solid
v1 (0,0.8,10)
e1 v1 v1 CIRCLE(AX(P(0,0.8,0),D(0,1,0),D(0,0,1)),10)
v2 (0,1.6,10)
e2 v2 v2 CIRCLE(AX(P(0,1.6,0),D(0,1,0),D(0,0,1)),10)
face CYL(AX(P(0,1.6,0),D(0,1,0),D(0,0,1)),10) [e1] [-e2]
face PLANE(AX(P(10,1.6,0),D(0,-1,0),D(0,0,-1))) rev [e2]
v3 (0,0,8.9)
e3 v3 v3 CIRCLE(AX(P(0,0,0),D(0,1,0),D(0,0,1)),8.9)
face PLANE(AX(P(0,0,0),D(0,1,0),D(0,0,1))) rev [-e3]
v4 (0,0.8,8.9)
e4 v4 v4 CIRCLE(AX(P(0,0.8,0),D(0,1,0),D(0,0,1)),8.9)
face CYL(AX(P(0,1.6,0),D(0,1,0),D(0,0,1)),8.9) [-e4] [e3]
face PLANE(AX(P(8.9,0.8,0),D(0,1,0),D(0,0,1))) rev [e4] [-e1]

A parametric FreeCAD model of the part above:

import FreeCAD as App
import Part
import Sketcher

V = App.Vector
Q = App.Units.Quantity

doc = App.newDocument("Part")
body = doc.addObject("PartDesign::Body", "Body")

# Sketch on XY plane
sketch1 = body.newObject("Sketcher::SketchObject", "Sketch")
sketch1.AttachmentSupport = (doc.getObject("XY_Plane"), [""])
sketch1.MapMode = "FlatFace"
sketch1.addGeometry(Part.LineSegment(V(0, 0, 0), V(8.9, 0, 0)), False)
sketch1.addGeometry(Part.LineSegment(V(8.9, 0, 0), V(8.9, 0.8, 0)), False)
sketch1.addGeometry(Part.LineSegment(V(8.9, 0.8, 0), V(10, 0.8, 0)), False)
sketch1.addGeometry(Part.LineSegment(V(10, 0.8, 0), V(10, 1.6, 0)), False)
sketch1.addGeometry(Part.LineSegment(V(10, 1.6, 0), V(0, 1.6, 0)), False)
sketch1.addGeometry(Part.LineSegment(V(0, 1.6, 0), V(0, 0, 0)), False)
sketch1.addConstraint(Sketcher.Constraint("Coincident", 0, 2, 1, 1))
sketch1.addConstraint(Sketcher.Constraint("Coincident", 1, 2, 2, 1))
sketch1.addConstraint(Sketcher.Constraint("Coincident", 2, 2, 3, 1))
sketch1.addConstraint(Sketcher.Constraint("Coincident", 3, 2, 4, 1))
sketch1.addConstraint(Sketcher.Constraint("Coincident", 4, 2, 5, 1))
sketch1.addConstraint(Sketcher.Constraint("Coincident", 5, 2, 0, 1))
sketch1.addConstraint(Sketcher.Constraint("Horizontal", 0))
sketch1.addConstraint(Sketcher.Constraint("Vertical", 1))
sketch1.addConstraint(Sketcher.Constraint("Horizontal", 2))
sketch1.addConstraint(Sketcher.Constraint("Vertical", 3))
sketch1.addConstraint(Sketcher.Constraint("Horizontal", 4))
sketch1.addConstraint(Sketcher.Constraint("Vertical", 5))
sketch1.addConstraint(Sketcher.Constraint("Coincident", 5, 2, -1, 1))
sketch1.addConstraint(Sketcher.Constraint("Equal", 1, 3))
sketch1.addConstraint(Sketcher.Constraint("DistanceX", 4, 2, 4, 1, Q("10 mm")))
sketch1.addConstraint(Sketcher.Constraint("DistanceX", 0, 1, 0, 2, Q("8.9 mm")))
sketch1.addConstraint(Sketcher.Constraint("DistanceY", 1, 1, 1, 2, Q("0.8 mm")))
revolution = body.newObject("PartDesign::Revolution", "Revolution")
revolution.Profile = sketch1
revolution.ReferenceAxis = (sketch1, ["V_Axis"])
revolution.Angle = 360

doc.recompute()
